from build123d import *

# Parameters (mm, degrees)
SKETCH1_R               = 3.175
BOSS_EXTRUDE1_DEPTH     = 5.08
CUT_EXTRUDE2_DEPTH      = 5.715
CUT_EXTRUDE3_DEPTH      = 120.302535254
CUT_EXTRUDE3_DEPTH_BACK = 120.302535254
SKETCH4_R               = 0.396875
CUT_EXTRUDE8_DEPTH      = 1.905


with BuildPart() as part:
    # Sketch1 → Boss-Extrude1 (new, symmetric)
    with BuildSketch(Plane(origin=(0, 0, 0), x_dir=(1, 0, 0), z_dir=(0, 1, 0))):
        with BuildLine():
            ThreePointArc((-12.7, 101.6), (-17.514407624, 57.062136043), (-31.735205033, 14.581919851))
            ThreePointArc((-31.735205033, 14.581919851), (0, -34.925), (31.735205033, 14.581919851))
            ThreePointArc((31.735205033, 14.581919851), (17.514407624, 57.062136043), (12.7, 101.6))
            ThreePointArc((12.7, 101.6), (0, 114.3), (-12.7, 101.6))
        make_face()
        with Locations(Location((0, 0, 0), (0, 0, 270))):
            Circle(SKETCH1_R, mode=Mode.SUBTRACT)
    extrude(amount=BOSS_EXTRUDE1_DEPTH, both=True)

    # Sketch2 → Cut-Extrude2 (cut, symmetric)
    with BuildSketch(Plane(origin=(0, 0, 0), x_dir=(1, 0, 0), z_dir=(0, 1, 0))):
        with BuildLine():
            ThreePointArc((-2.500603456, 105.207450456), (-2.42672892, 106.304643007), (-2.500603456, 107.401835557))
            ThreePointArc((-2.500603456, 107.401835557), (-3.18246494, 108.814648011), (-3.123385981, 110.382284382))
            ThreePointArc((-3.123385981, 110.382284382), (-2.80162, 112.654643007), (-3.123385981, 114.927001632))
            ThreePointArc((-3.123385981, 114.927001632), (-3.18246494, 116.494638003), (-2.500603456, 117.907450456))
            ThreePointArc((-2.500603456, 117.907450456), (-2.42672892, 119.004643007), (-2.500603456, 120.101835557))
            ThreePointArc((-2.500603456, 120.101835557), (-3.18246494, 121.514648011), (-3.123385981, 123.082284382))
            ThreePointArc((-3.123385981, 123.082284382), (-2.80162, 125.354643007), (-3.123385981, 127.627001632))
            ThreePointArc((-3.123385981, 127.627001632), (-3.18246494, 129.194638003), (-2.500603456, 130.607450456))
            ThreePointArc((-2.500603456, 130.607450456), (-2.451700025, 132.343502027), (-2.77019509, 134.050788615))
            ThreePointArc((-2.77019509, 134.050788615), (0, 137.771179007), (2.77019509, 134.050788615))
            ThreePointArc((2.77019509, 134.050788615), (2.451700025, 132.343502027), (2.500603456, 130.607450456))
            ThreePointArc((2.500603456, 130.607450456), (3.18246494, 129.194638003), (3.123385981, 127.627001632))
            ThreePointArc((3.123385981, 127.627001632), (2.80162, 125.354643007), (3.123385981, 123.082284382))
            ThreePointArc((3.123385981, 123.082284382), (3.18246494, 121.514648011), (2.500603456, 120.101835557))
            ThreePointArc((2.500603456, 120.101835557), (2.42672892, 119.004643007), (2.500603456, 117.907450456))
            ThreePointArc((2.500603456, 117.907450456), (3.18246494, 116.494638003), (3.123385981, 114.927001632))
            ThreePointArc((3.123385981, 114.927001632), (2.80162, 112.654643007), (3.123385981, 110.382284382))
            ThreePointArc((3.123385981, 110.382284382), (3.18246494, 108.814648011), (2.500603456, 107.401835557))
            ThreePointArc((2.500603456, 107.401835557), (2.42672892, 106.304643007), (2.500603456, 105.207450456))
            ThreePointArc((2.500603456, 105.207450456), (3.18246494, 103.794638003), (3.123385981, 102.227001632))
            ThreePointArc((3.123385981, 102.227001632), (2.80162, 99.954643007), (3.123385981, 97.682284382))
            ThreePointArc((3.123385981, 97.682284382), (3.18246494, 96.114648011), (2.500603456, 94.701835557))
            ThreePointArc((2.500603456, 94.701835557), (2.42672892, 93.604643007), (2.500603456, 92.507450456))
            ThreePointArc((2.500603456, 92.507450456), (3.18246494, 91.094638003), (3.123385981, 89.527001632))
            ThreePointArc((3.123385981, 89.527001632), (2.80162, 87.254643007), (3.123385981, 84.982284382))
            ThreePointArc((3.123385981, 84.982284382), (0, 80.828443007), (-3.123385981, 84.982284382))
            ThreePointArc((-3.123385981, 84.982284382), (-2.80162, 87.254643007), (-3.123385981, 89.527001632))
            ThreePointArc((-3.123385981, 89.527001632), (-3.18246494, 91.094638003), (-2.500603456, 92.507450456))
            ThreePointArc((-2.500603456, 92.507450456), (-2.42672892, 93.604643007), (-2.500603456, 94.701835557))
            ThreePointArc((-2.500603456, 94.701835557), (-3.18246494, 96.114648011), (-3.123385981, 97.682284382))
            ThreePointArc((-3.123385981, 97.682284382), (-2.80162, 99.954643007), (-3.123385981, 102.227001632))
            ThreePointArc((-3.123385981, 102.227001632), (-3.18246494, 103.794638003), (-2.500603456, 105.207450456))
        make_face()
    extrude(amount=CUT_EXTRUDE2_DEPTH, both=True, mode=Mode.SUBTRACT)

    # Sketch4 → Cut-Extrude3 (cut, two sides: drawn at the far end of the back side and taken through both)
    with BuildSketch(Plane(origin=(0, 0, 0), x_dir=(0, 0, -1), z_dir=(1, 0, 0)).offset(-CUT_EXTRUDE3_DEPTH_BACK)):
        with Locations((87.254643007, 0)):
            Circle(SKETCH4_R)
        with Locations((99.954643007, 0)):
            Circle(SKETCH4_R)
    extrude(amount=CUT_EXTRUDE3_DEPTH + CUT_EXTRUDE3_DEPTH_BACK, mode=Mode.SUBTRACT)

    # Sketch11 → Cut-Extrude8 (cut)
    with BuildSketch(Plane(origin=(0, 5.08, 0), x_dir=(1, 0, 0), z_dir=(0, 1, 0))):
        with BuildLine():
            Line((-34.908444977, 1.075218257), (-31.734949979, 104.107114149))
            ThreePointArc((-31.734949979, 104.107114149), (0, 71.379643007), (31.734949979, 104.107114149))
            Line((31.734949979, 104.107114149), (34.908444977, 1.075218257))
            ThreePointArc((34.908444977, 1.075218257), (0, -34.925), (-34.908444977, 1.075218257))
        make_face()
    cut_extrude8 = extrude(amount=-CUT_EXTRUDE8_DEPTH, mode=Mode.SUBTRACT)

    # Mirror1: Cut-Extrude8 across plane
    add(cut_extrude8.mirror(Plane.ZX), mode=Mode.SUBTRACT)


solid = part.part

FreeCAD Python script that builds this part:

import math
import FreeCAD as App
import Part
import Sketcher
Q = App.Units.Quantity

doc = App.newDocument("Part")
body = doc.addObject("PartDesign::Body", "Body")

sketch1 = body.newObject("Sketcher::SketchObject", "Sketch")
sketch1.AttachmentSupport = (doc.getObject("XZ_Plane"), [""])
sketch1.MapMode = "FlatFace"
sketch1.addGeometry([
    Part.ArcOfCircle(Part.Circle(App.Vector(-221.1, -101.6, 0), App.Vector(0, 0, 1), 208.4), math.radians(0), math.radians(25)),
    Part.ArcOfCircle(Part.Circle(App.Vector(0, 0, 0), App.Vector(0, 0, 1), 34.9), math.radians(-25), math.radians(205)),
    Part.ArcOfCircle(Part.Circle(App.Vector(221.1, -101.6, 0), App.Vector(0, 0, 1), 208.4), math.radians(155), math.radians(180)),
    Part.ArcOfCircle(Part.Circle(App.Vector(0, -101.6, 0), App.Vector(0, 0, 1), 12.7), math.radians(180), math.radians(360)),
    Part.Circle(App.Vector(0, 0, 0), App.Vector(0, 0, 1), 3.2),
], False)
sketch1.addConstraint([
    Sketcher.Constraint("Tangent", 0, 2, 1, 2),
    Sketcher.Constraint("Tangent", 1, 1, 2, 1),
    Sketcher.Constraint("Tangent", 2, 2, 3, 2),
    Sketcher.Constraint("Tangent", 3, 1, 0, 1),
    Sketcher.Constraint("Coincident", 1, 3, -1, 1),
    Sketcher.Constraint("Coincident", 4, 3, -1, 1),
    Sketcher.Constraint("Equal", 0, 2),
    Sketcher.Constraint("PointOnObject", 3, 3, -2),
    Sketcher.Constraint("Horizontal", 2, 3, 3, 3),
    Sketcher.Constraint("Radius", 3, Q("0.5 in")),
    Sketcher.Constraint("Diameter", 4, Q("0.25 in")),
    Sketcher.Constraint("DistanceY", 0, 3, -1, 1, Q("4 in")),
    Sketcher.Constraint("Radius", 1, Q("1.375 in")),
])
pad1 = body.newObject("PartDesign::Pad", "Pad")
pad1.Profile = sketch1
pad1.Length = Q("0.4 in")
pad1.Midplane = True

sketch2 = body.newObject("Sketcher::SketchObject", "Sketch001")
sketch2.AttachmentSupport = (doc.getObject("XZ_Plane"), [""])
sketch2.MapMode = "FlatFace"
sketch2.addGeometry([
    Part.ArcOfCircle(Part.Circle(App.Vector(-10.6, -106.3, 0), App.Vector(0, 0, 1), 8.2), math.radians(-7.7), math.radians(7.7)),
    Part.ArcOfCircle(Part.Circle(App.Vector(0, -103.1, 0), App.Vector(0, 0, 1), 3.3), math.radians(164), math.radians(220)),
    Part.ArcOfCircle(Part.Circle(App.Vector(-11, -100, 0), App.Vector(0, 0, 1), 8.2), math.radians(-16), math.radians(16)),
    Part.ArcOfCircle(Part.Circle(App.Vector(0, -96.8, 0), App.Vector(0, 0, 1), 3.3), math.radians(140), math.radians(196)),
    Part.ArcOfCircle(Part.Circle(App.Vector(-10.6, -93.6, 0), App.Vector(0, 0, 1), 8.2), math.radians(-7.7), math.radians(7.7)),
    Part.ArcOfCircle(Part.Circle(App.Vector(0, -90.4, 0), App.Vector(0, 0, 1), 3.3), math.radians(164), math.radians(220)),
    Part.ArcOfCircle(Part.Circle(App.Vector(-11, -87.3, 0), App.Vector(0, 0, 1), 8.2), math.radians(-16), math.radians(16)),
    Part.ArcOfCircle(Part.Circle(App.Vector(0, -84.1, 0), App.Vector(0, 0, 1), 3.3), math.radians(-16), math.radians(196)),
    Part.ArcOfCircle(Part.Circle(App.Vector(11, -87.3, 0), App.Vector(0, 0, 1), 8.2), math.radians(164), math.radians(196)),
    Part.ArcOfCircle(Part.Circle(App.Vector(0, -90.4, 0), App.Vector(0, 0, 1), 3.3), math.radians(-40), math.radians(16)),
    Part.ArcOfCircle(Part.Circle(App.Vector(10.6, -93.6, 0), App.Vector(0, 0, 1), 8.2), math.radians(172.3), math.radians(187.7)),
    Part.ArcOfCircle(Part.Circle(App.Vector(0, -96.8, 0), App.Vector(0, 0, 1), 3.3), math.radians(-16), math.radians(40)),
    Part.ArcOfCircle(Part.Circle(App.Vector(11, -100, 0), App.Vector(0, 0, 1), 8.2), math.radians(164), math.radians(196)),
    Part.ArcOfCircle(Part.Circle(App.Vector(0, -103.1, 0), App.Vector(0, 0, 1), 3.3), math.radians(-40), math.radians(16)),
    Part.ArcOfCircle(Part.Circle(App.Vector(10.6, -106.3, 0), App.Vector(0, 0, 1), 8.2), math.radians(172.3), math.radians(187.7)),
    Part.ArcOfCircle(Part.Circle(App.Vector(0, -109.5, 0), App.Vector(0, 0, 1), 3.3), math.radians(-16), math.radians(40)),
    Part.ArcOfCircle(Part.Circle(App.Vector(11, -112.7, 0), App.Vector(0, 0, 1), 8.2), math.radians(164), math.radians(196)),
    Part.ArcOfCircle(Part.Circle(App.Vector(0, -115.8, 0), App.Vector(0, 0, 1), 3.3), math.radians(-40), math.radians(16)),
    Part.ArcOfCircle(Part.Circle(App.Vector(10.6, -119, 0), App.Vector(0, 0, 1), 8.2), math.radians(172.3), math.radians(187.7)),
    Part.ArcOfCircle(Part.Circle(App.Vector(0, -122.2, 0), App.Vector(0, 0, 1), 3.3), math.radians(-16), math.radians(40)),
    Part.ArcOfCircle(Part.Circle(App.Vector(11, -125.4, 0), App.Vector(0, 0, 1), 8.2), math.radians(164), math.radians(196)),
    Part.ArcOfCircle(Part.Circle(App.Vector(0, -128.5, 0), App.Vector(0, 0, 1), 3.3), math.radians(-40), math.radians(16)),
    Part.ArcOfCircle(Part.Circle(App.Vector(10.6, -131.7, 0), App.Vector(0, 0, 1), 8.2), math.radians(172), math.radians(197)),
    Part.ArcOfCircle(Part.Circle(App.Vector(0, -134.9, 0), App.Vector(0, 0, 1), 2.9), math.radians(163), math.radians(377)),
    Part.ArcOfCircle(Part.Circle(App.Vector(-10.6, -131.7, 0), App.Vector(0, 0, 1), 8.2), math.radians(-17), math.radians(8)),
    Part.ArcOfCircle(Part.Circle(App.Vector(0, -128.5, 0), App.Vector(0, 0, 1), 3.3), math.radians(164), math.radians(220)),
    Part.ArcOfCircle(Part.Circle(App.Vector(-11, -125.4, 0), App.Vector(0, 0, 1), 8.2), math.radians(-16), math.radians(16)),
    Part.ArcOfCircle(Part.Circle(App.Vector(0, -122.2, 0), App.Vector(0, 0, 1), 3.3), math.radians(140), math.radians(196)),
    Part.ArcOfCircle(Part.Circle(App.Vector(-10.6, -119, 0), App.Vector(0, 0, 1), 8.2), math.radians(-7.7), math.radians(7.7)),
    Part.ArcOfCircle(Part.Circle(App.Vector(0, -115.8, 0), App.Vector(0, 0, 1), 3.3), math.radians(164), math.radians(220)),
    Part.ArcOfCircle(Part.Circle(App.Vector(-11, -112.7, 0), App.Vector(0, 0, 1), 8.2), math.radians(-16), math.radians(16)),
    Part.ArcOfCircle(Part.Circle(App.Vector(0, -109.5, 0), App.Vector(0, 0, 1), 3.3), math.radians(140), math.radians(196)),
], False)
sketch2.addConstraint([
    Sketcher.Constraint("Coincident", 0, 2, 1, 2),
    Sketcher.Constraint("Tangent", 1, 1, 2, 1),
    Sketcher.Constraint("Tangent", 2, 2, 3, 2),
    Sketcher.Constraint("Coincident", 3, 1, 4, 1),
    Sketcher.Constraint("Coincident", 4, 2, 5, 2),
    Sketcher.Constraint("Tangent", 5, 1, 6, 1),
    Sketcher.Constraint("Tangent", 6, 2, 7, 2),
    Sketcher.Constraint("Tangent", 7, 1, 8, 1),
    Sketcher.Constraint("Tangent", 8, 2, 9, 2),
    Sketcher.Constraint("Coincident", 9, 1, 10, 1),
    Sketcher.Constraint("Coincident", 10, 2, 11, 2),
    Sketcher.Constraint("Tangent", 11, 1, 12, 1),
    Sketcher.Constraint("Tangent", 12, 2, 13, 2),
    Sketcher.Constraint("Coincident", 13, 1, 14, 1),
    Sketcher.Constraint("Coincident", 14, 2, 15, 2),
    Sketcher.Constraint("Tangent", 15, 1, 16, 1),
    Sketcher.Constraint("Tangent", 16, 2, 17, 2),
    Sketcher.Constraint("Coincident", 17, 1, 18, 1),
    Sketcher.Constraint("Coincident", 18, 2, 19, 2),
    Sketcher.Constraint("Tangent", 19, 1, 20, 1),
    Sketcher.Constraint("Tangent", 20, 2, 21, 2),
    Sketcher.Constraint("Coincident", 21, 1, 22, 1),
    Sketcher.Constraint("Tangent", 22, 2, 23, 2),
    Sketcher.Constraint("Tangent", 23, 1, 24, 1),
    Sketcher.Constraint("Coincident", 24, 2, 25, 2),
    Sketcher.Constraint("Tangent", 25, 1, 26, 1),
    Sketcher.Constraint("Tangent", 26, 2, 27, 2),
    Sketcher.Constraint("Coincident", 27, 1, 28, 1),
    Sketcher.Constraint("Coincident", 28, 2, 29, 2),
    Sketcher.Constraint("Tangent", 29, 1, 30, 1),
    Sketcher.Constraint("Tangent", 30, 2, 31, 2),
    Sketcher.Constraint("Coincident", 31, 1, 0, 1),
    Sketcher.Constraint("Coincident", 9, 3, 5, 3),
    Sketcher.Constraint("Coincident", 11, 3, 3, 3),
    Sketcher.Constraint("Coincident", 13, 3, 1, 3),
    Sketcher.Constraint("Coincident", 25, 3, 21, 3),
    Sketcher.Constraint("Coincident", 27, 3, 19, 3),
    Sketcher.Constraint("Coincident", 29, 3, 17, 3),
    Sketcher.Constraint("Coincident", 31, 3, 15, 3),
    Sketcher.Constraint("Equal", 0, 2),
    Sketcher.Constraint("Equal", 1, 3),
    Sketcher.Constraint("Equal", 2, 4),
    Sketcher.Constraint("Equal", 3, 5),
    Sketcher.Constraint("Equal", 4, 6),
    Sketcher.Constraint("Equal", 5, 7),
    Sketcher.Constraint("Equal", 6, 8),
    Sketcher.Constraint("Equal", 7, 9),
    Sketcher.Constraint("Equal", 8, 10),
    Sketcher.Constraint("Equal", 9, 11),
    Sketcher.Constraint("Equal", 10, 12),
    Sketcher.Constraint("Equal", 11, 13),
    Sketcher.Constraint("Equal", 12, 14),
    Sketcher.Constraint("Equal", 13, 15),
    Sketcher.Constraint("Equal", 14, 16),
    Sketcher.Constraint("Equal", 15, 17),
    Sketcher.Constraint("Equal", 16, 18),
    Sketcher.Constraint("Equal", 17, 19),
    Sketcher.Constraint("Equal", 18, 20),
    Sketcher.Constraint("Equal", 19, 21),
    Sketcher.Constraint("Equal", 20, 22),
    Sketcher.Constraint("Equal", 22, 24),
    Sketcher.Constraint("Equal", 21, 25),
    Sketcher.Constraint("Equal", 24, 26),
    Sketcher.Constraint("Equal", 25, 27),
    Sketcher.Constraint("Equal", 26, 28),
    Sketcher.Constraint("Equal", 27, 29),
    Sketcher.Constraint("Equal", 28, 30),
    Sketcher.Constraint("Equal", 29, 31),
    Sketcher.Constraint("Symmetric", 6, 3, 8, 3, -2),
    Sketcher.Constraint("Symmetric", 4, 3, 10, 3, -2),
    Sketcher.Constraint("Symmetric", 2, 3, 12, 3, -2),
    Sketcher.Constraint("Symmetric", 0, 3, 14, 3, -2),
    Sketcher.Constraint("Symmetric", 22, 3, 24, 3, -2),
    Sketcher.Constraint("Symmetric", 20, 3, 26, 3, -2),
    Sketcher.Constraint("Symmetric", 18, 3, 28, 3, -2),
    Sketcher.Constraint("Symmetric", 16, 3, 30, 3, -2),
    Sketcher.Constraint("Vertical", 0, 3, 4, 3),
    Sketcher.Constraint("Vertical", 2, 3, 6, 3),
    Sketcher.Constraint("Vertical", 12, 3, 16, 3),
    Sketcher.Constraint("Vertical", 14, 3, 18, 3),
    Sketcher.Constraint("Vertical", 16, 3, 20, 3),
    Sketcher.Constraint("Vertical", 18, 3, 22, 3),
    Sketcher.Constraint("Vertical", 0, 2, 3, 1),
    Sketcher.Constraint("Vertical", 3, 1, 4, 2),
    Sketcher.Constraint("Vertical", 13, 1, 14, 2),
    Sketcher.Constraint("Vertical", 14, 2, 17, 1),
    Sketcher.Constraint("Vertical", 17, 1, 18, 2),
    Sketcher.Constraint("Vertical", 18, 2, 21, 1),
    Sketcher.Constraint("Radius", 1, Q("0.128 in")),
    Sketcher.Constraint("Radius", 0, 8.184748),
    Sketcher.Constraint("Radius", 23, 2.891536),
    Sketcher.Constraint("DistanceY", 1, 1, -1, 1, 102.227002),
    Sketcher.Constraint("DistanceY", 5, 1, -1, 1, 89.527002),
    Sketcher.Constraint("DistanceX", 2, 3, -1, 1, 10.986368),
    Sketcher.Constraint("DistanceY", 0, 2, -1, 1, 105.20745),
])
pocket1 = body.newObject("PartDesign::Pocket", "Pocket")
pocket1.Profile = sketch2
pocket1.Length = Q("0.45 in")
pocket1.Midplane = True

sketch3 = body.newObject("Sketcher::SketchObject", "Sketch002")
sketch3.AttachmentSupport = (doc.getObject("YZ_Plane"), [""])
sketch3.MapMode = "FlatFace"
sketch3.addGeometry([
    Part.Circle(App.Vector(0, -87.25, 0), App.Vector(0, 0, 1), 0.4),
    Part.Circle(App.Vector(0, -99.95, 0), App.Vector(0, 0, 1), 0.4),
], False)
sketch3.addConstraint([
    Sketcher.Constraint("Equal", 0, 1),
    Sketcher.Constraint("PointOnObject", 0, 3, -2),
    Sketcher.Constraint("PointOnObject", 1, 3, -2),
    Sketcher.Constraint("Diameter", 0, Q("0.03125 in")),
    Sketcher.Constraint("DistanceY", 1, 3, 0, 3, Q("0.5 in")),
    Sketcher.Constraint("DistanceY", 0, 3, -1, 1, 87.254643),
])
pocket2 = body.newObject("PartDesign::Pocket", "Pocket001")
pocket2.Profile = sketch3
pocket2.Type = "ThroughAll"
pocket2.Midplane = True

sketch4 = body.newObject("Sketcher::SketchObject", "Sketch003")
sketch4.AttachmentSupport = (doc.getObject("XZ_Plane"), [""])
sketch4.MapMode = "FlatFace"
sketch4.AttachmentOffset = App.Placement(App.Vector(0, 0, -0.2 * 25.4), App.Rotation())
sketch4.addGeometry([
    Part.LineSegment(App.Vector(-31.73495, -104.107114, 0), App.Vector(-34.908445, -1.075218, 0)),
    Part.ArcOfCircle(Part.Circle(App.Vector(0, 0, 0), App.Vector(0, 0, 1), 34.925), math.radians(-1.764215), math.radians(181.764215)),
    Part.LineSegment(App.Vector(34.908445, -1.075218, 0), App.Vector(31.73495, -104.107114, 0)),
    Part.ArcOfCircle(Part.Circle(App.Vector(0, -103.129643, 0), App.Vector(0, 0, 1), 31.75), math.radians(-1.764215), math.radians(181.764215)),
], False)
sketch4.addConstraint([
    Sketcher.Constraint("Coincident", 0, 2, 1, 2),
    Sketcher.Constraint("Coincident", 1, 1, 2, 1),
    Sketcher.Constraint("Coincident", 2, 2, 3, 1),
    Sketcher.Constraint("Coincident", 3, 2, 0, 1),
    Sketcher.Constraint("Coincident", 1, 3, -1, 1),
    Sketcher.Constraint("PointOnObject", 3, 3, -2),
    Sketcher.Constraint("Radius", 3, Q("1.25 in")),
    Sketcher.Constraint("Radius", 1, Q("1.375 in")),
    Sketcher.Constraint("DistanceX", 3, 2, 2, 2, 63.4699),
    Sketcher.Constraint("DistanceY", 0, 2, -1, 1, 1.075218),
    Sketcher.Constraint("DistanceY", 1, 1, -1, 1, 1.075218),
    Sketcher.Constraint("DistanceX", -1, 1, 2, 2, 31.73495),
    Sketcher.Constraint("Distance", 0, 103.080758),
])
pocket3 = body.newObject("PartDesign::Pocket", "Pocket002")
pocket3.Profile = sketch4
pocket3.Length = Q("0.075 in")
pocket3.Reversed = True
doc.recompute()

mirrored = body.newObject("PartDesign::Mirrored", "Mirrored")
mirrored.Originals = [pocket3]
mirrored.MirrorPlane = (doc.getObject("XZ_Plane"), [""])
body.Tip = mirrored

doc.recompute()
